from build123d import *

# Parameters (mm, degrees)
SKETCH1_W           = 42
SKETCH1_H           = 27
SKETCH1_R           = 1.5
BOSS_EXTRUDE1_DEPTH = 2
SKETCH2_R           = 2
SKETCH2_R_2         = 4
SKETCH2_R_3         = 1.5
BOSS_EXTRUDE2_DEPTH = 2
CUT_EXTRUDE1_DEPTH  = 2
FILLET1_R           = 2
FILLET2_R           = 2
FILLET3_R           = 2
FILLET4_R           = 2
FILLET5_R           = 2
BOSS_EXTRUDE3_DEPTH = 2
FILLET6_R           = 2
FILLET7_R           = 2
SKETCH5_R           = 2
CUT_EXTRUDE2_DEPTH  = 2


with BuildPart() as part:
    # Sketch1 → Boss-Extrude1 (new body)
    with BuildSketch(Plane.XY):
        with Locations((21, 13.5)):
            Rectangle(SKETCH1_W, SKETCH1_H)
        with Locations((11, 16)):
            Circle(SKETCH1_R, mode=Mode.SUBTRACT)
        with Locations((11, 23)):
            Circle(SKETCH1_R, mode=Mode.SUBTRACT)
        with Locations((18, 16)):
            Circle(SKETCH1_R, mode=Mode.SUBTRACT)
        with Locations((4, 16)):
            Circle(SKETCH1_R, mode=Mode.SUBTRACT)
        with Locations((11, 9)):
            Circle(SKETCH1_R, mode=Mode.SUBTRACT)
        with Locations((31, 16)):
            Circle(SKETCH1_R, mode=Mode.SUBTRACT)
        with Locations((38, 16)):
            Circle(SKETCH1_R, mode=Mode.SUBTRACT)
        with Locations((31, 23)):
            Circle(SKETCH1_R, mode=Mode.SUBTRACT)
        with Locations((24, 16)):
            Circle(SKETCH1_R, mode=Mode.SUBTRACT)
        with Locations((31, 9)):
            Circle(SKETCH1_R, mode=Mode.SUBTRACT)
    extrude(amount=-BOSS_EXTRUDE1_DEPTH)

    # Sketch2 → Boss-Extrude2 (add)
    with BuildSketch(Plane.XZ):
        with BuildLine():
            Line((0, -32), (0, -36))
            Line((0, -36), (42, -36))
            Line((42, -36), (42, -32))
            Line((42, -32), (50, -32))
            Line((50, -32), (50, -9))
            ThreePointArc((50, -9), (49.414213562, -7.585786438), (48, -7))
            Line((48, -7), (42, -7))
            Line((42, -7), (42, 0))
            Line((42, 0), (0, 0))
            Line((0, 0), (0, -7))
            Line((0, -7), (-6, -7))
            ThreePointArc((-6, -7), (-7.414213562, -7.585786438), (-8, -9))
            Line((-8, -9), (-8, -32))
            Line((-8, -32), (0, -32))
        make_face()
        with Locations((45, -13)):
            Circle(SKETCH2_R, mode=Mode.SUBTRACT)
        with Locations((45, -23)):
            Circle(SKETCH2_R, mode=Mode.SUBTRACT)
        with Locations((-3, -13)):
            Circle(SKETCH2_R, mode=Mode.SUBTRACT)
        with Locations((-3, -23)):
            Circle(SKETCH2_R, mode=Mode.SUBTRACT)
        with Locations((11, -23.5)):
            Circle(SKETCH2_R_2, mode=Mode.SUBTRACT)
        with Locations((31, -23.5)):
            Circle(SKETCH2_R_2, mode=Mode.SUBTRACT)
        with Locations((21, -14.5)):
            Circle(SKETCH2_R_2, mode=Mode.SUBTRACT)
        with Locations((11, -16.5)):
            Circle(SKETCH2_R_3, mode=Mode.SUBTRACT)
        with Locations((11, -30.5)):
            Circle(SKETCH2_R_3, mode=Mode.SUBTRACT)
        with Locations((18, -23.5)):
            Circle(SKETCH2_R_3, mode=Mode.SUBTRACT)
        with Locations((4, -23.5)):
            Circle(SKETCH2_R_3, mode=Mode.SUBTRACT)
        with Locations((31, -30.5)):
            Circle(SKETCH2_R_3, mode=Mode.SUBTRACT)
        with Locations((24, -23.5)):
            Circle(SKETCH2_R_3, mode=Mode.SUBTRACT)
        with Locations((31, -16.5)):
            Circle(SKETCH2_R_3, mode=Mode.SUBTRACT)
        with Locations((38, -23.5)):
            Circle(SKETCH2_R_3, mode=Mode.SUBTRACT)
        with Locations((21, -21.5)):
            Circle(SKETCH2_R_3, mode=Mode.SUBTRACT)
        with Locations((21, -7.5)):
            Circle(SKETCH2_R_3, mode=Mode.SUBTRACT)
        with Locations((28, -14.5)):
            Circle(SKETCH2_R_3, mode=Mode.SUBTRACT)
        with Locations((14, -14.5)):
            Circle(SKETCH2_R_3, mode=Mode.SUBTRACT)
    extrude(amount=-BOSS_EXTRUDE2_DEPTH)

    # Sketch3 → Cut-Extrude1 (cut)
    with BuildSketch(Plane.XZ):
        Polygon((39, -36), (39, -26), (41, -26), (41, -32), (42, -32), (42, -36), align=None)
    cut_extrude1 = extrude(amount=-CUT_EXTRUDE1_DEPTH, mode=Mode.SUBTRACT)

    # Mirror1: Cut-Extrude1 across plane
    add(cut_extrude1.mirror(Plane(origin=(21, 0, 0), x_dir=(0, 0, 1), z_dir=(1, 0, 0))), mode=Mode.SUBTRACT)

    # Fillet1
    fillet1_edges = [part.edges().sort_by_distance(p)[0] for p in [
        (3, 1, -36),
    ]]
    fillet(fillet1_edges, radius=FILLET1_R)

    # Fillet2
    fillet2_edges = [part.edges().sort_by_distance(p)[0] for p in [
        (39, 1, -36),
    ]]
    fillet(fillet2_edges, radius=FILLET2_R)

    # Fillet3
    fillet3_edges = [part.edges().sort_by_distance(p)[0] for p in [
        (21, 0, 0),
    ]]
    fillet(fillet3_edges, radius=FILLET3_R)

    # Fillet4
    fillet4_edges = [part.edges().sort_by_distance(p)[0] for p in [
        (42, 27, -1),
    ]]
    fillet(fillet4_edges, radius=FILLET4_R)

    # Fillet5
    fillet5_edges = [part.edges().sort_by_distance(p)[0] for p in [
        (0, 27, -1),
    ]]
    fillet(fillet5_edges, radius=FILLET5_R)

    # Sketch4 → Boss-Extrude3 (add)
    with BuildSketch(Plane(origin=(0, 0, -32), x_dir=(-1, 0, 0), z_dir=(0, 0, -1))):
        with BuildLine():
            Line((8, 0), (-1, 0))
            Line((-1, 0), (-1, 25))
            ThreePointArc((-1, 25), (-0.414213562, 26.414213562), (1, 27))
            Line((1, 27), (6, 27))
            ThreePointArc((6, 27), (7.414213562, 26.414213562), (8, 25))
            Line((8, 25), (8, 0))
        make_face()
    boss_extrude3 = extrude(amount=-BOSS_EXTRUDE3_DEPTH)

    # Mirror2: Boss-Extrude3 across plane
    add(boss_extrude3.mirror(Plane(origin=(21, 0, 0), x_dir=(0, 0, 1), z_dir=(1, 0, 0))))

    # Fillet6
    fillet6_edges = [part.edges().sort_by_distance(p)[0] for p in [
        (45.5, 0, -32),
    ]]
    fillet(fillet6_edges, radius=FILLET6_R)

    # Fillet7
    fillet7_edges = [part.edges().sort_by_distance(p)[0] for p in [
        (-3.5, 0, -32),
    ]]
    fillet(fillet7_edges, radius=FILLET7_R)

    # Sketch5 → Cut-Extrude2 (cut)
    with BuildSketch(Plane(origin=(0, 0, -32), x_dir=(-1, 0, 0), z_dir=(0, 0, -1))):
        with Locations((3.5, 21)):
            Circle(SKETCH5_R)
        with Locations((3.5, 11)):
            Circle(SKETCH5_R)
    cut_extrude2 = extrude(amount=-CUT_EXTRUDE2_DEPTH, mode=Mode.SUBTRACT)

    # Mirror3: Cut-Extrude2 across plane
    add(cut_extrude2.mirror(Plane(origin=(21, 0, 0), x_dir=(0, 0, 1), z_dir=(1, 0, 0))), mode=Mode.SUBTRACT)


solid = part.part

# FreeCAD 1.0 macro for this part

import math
import FreeCAD as App
import Part
import Sketcher

V = App.Vector
Q = App.Units.Quantity


def edges_at(feature, points):
    """Names of the edges that pass closest to the given points."""
    edges = feature.Shape.Edges
    near = lambda p: min(range(len(edges)), key=lambda i: edges[i].distToShape(Part.Vertex(*p))[0])
    return sorted({f"Edge{near(p) + 1}" for p in points})


def add_polygon(sketch, points):
    """Adds a closed chain of lines whose ends are joined by coincident constraints."""
    first, n = sketch.GeometryCount, len(points)
    for a, b in zip(points, points[1:] + points[:1]):
        sketch.addGeometry(Part.LineSegment(App.Vector(*a, 0), App.Vector(*b, 0)), False)
    for i in range(n):
        sketch.addConstraint(Sketcher.Constraint("Coincident", first + i, 2, first + (i + 1) % n, 1))

doc = App.newDocument("Part")
body = doc.addObject("PartDesign::Body", "Body")

# Sketch on XY plane
sketch1 = doc.addObject("Sketcher::SketchObject", "Sketch")
body.addObject(sketch1)
sketch1.AttachmentSupport = (doc.XY_Plane, [""])
sketch1.MapMode = "FlatFace"
add_polygon(sketch1, [(0, 27), (0, 0), (42, 0), (42, 27)])  # lines 0-3
sketch1.addGeometry(Part.Circle(V(11, 9, 0), V(0, 0, 1), 1.5), False)  # 4
sketch1.addGeometry(Part.Circle(V(31, 9, 0), V(0, 0, 1), 1.5), False)  # 5
sketch1.addGeometry(Part.Circle(V(4, 16, 0), V(0, 0, 1), 1.5), False)  # 6
sketch1.addGeometry(Part.Circle(V(11, 16, 0), V(0, 0, 1), 1.5), False)  # 7
sketch1.addGeometry(Part.Circle(V(18, 16, 0), V(0, 0, 1), 1.5), False)  # 8
sketch1.addGeometry(Part.Circle(V(11, 23, 0), V(0, 0, 1), 1.5), False)  # 9
sketch1.addGeometry(Part.Circle(V(24, 16, 0), V(0, 0, 1), 1.5), False)  # 10
sketch1.addGeometry(Part.Circle(V(31, 16, 0), V(0, 0, 1), 1.5), False)  # 11
sketch1.addGeometry(Part.Circle(V(38, 16, 0), V(0, 0, 1), 1.5), False)  # 12
sketch1.addGeometry(Part.Circle(V(31, 23, 0), V(0, 0, 1), 1.5), False)  # 13
sketch1.addConstraint([
    Sketcher.Constraint("Vertical", 0),
    Sketcher.Constraint("Horizontal", 1),
    Sketcher.Constraint("Vertical", 2),
    Sketcher.Constraint("Horizontal", 3),
    Sketcher.Constraint("Coincident", 0, 2, -1, 1),
    Sketcher.Constraint("Equal", 4, 5),
    Sketcher.Constraint("Equal", 5, 6),
    Sketcher.Constraint("Equal", 6, 7),
    Sketcher.Constraint("Equal", 7, 8),
    Sketcher.Constraint("Equal", 8, 9),
    Sketcher.Constraint("Equal", 9, 10),
    Sketcher.Constraint("Equal", 10, 11),
    Sketcher.Constraint("Equal", 11, 12),
    Sketcher.Constraint("Equal", 12, 13),
    Sketcher.Constraint("Horizontal", 4, 3, 5, 3),
    Sketcher.Constraint("Horizontal", 6, 3, 7, 3),
    Sketcher.Constraint("Horizontal", 7, 3, 8, 3),
    Sketcher.Constraint("Horizontal", 8, 3, 10, 3),
    Sketcher.Constraint("Horizontal", 10, 3, 11, 3),
    Sketcher.Constraint("Horizontal", 11, 3, 12, 3),
    Sketcher.Constraint("Horizontal", 9, 3, 13, 3),
    Sketcher.Constraint("Vertical", 4, 3, 7, 3),
    Sketcher.Constraint("Vertical", 7, 3, 9, 3),
    Sketcher.Constraint("Vertical", 5, 3, 11, 3),
    Sketcher.Constraint("Vertical", 11, 3, 13, 3),
    Sketcher.Constraint("Diameter", 4, Q("3 mm")),
    Sketcher.Constraint("DistanceX", 1, 1, 1, 2, Q("42 mm")),
    Sketcher.Constraint("DistanceY", 0, 2, 0, 1, Q("27 mm")),
    Sketcher.Constraint("DistanceX", -1, 1, 4, 3, Q("11 mm")),
    Sketcher.Constraint("DistanceY", -1, 1, 4, 3, Q("9 mm")),
    Sketcher.Constraint("DistanceX", -1, 1, 5, 3, Q("31 mm")),
    Sketcher.Constraint("DistanceX", -1, 1, 6, 3, Q("4 mm")),
    Sketcher.Constraint("DistanceY", -1, 1, 6, 3, Q("16 mm")),
    Sketcher.Constraint("DistanceX", -1, 1, 8, 3, Q("18 mm")),
    Sketcher.Constraint("DistanceY", -1, 1, 9, 3, Q("23 mm")),
    Sketcher.Constraint("DistanceX", -1, 1, 10, 3, Q("24 mm")),
    Sketcher.Constraint("DistanceX", -1, 1, 12, 3, Q("38 mm")),
])
pad1 = doc.addObject("PartDesign::Pad", "Pad")
body.addObject(pad1)
pad1.Profile = sketch1
pad1.Length = 2
pad1.Reversed = True

# Sketch on XZ plane
sketch2 = doc.addObject("Sketcher::SketchObject", "Sketch001")
body.addObject(sketch2)
sketch2.AttachmentSupport = (doc.XZ_Plane, [""])
sketch2.MapMode = "FlatFace"
sketch2.addGeometry([
    Part.LineSegment(V(0, -32, 0), V(0, -36, 0)),  # 0
    Part.LineSegment(V(0, -36, 0), V(42, -36, 0)),  # 1
    Part.LineSegment(V(42, -36, 0), V(42, -32, 0)),  # 2
    Part.LineSegment(V(42, -32, 0), V(50, -32, 0)),  # 3
    Part.LineSegment(V(50, -32, 0), V(50, -9, 0)),  # 4
    Part.ArcOfCircle(Part.Circle(V(48, -9, 0), V(0, 0, 1), 2), math.radians(0), math.radians(90)),  # 5
    Part.LineSegment(V(48, -7, 0), V(42, -7, 0)),  # 6
    Part.LineSegment(V(42, -7, 0), V(42, 0, 0)),  # 7
    Part.LineSegment(V(42, 0, 0), V(0, 0, 0)),  # 8
    Part.LineSegment(V(0, 0, 0), V(0, -7, 0)),  # 9
    Part.LineSegment(V(0, -7, 0), V(-6, -7, 0)),  # 10
    Part.ArcOfCircle(Part.Circle(V(-6, -9, 0), V(0, 0, 1), 2), math.radians(90), math.radians(180)),  # 11
    Part.LineSegment(V(-8, -9, 0), V(-8, -32, 0)),  # 12
    Part.LineSegment(V(-8, -32, 0), V(0, -32, 0)),  # 13
    Part.Circle(V(11, -30.5, 0), V(0, 0, 1), 1.5),  # 14
    Part.Circle(V(-3, -23, 0), V(0, 0, 1), 2),  # 15
    Part.Circle(V(4, -23.5, 0), V(0, 0, 1), 1.5),  # 16
    Part.Circle(V(11, -23.5, 0), V(0, 0, 1), 4),  # 17
    Part.Circle(V(18, -23.5, 0), V(0, 0, 1), 1.5),  # 18
    Part.Circle(V(31, -30.5, 0), V(0, 0, 1), 1.5),  # 19
    Part.Circle(V(24, -23.5, 0), V(0, 0, 1), 1.5),  # 20
    Part.Circle(V(31, -23.5, 0), V(0, 0, 1), 4),  # 21
    Part.Circle(V(21, -21.5, 0), V(0, 0, 1), 1.5),  # 22
    Part.Circle(V(38, -23.5, 0), V(0, 0, 1), 1.5),  # 23
    Part.Circle(V(45, -23, 0), V(0, 0, 1), 2),  # 24
    Part.Circle(V(-3, -13, 0), V(0, 0, 1), 2),  # 25
    Part.Circle(V(11, -16.5, 0), V(0, 0, 1), 1.5),  # 26
    Part.Circle(V(14, -14.5, 0), V(0, 0, 1), 1.5),  # 27
    Part.Circle(V(31, -16.5, 0), V(0, 0, 1), 1.5),  # 28
    Part.Circle(V(21, -14.5, 0), V(0, 0, 1), 4),  # 29
    Part.Circle(V(28, -14.5, 0), V(0, 0, 1), 1.5),  # 30
    Part.Circle(V(45, -13, 0), V(0, 0, 1), 2),  # 31
    Part.Circle(V(21, -7.5, 0), V(0, 0, 1), 1.5),  # 32
], False)
sketch2.addConstraint([
    Sketcher.Constraint("Coincident", 0, 2, 1, 1),
    Sketcher.Constraint("Coincident", 1, 2, 2, 1),
    Sketcher.Constraint("Coincident", 2, 2, 3, 1),
    Sketcher.Constraint("Coincident", 3, 2, 4, 1),
    Sketcher.Constraint("Tangent", 4, 2, 5, 1),
    Sketcher.Constraint("Tangent", 5, 2, 6, 1),
    Sketcher.Constraint("Coincident", 6, 2, 7, 1),
    Sketcher.Constraint("Coincident", 7, 2, 8, 1),
    Sketcher.Constraint("Coincident", 8, 2, 9, 1),
    Sketcher.Constraint("Coincident", 9, 2, 10, 1),
    Sketcher.Constraint("Tangent", 10, 2, 11, 1),
    Sketcher.Constraint("Tangent", 11, 2, 12, 1),
    Sketcher.Constraint("Coincident", 12, 2, 13, 1),
    Sketcher.Constraint("Coincident", 13, 2, 0, 1),
    Sketcher.Constraint("Vertical", 0),
    Sketcher.Constraint("Horizontal", 1),
    Sketcher.Constraint("Vertical", 2),
    Sketcher.Constraint("Horizontal", 3),
    Sketcher.Constraint("Vertical", 4),
    Sketcher.Constraint("Horizontal", 6),
    Sketcher.Constraint("Vertical", 7),
    Sketcher.Constraint("Horizontal", 8),
    Sketcher.Constraint("Vertical", 9),
    Sketcher.Constraint("Horizontal", 10),
    Sketcher.Constraint("Vertical", 12),
    Sketcher.Constraint("Horizontal", 13),
    Sketcher.Constraint("Coincident", 8, 2, -1, 1),
    Sketcher.Constraint("Equal", 5, 11),
    Sketcher.Constraint("Equal", 11, 15),
    Sketcher.Constraint("Equal", 14, 16),
    Sketcher.Constraint("Equal", 16, 18),
    Sketcher.Constraint("Equal", 18, 19),
    Sketcher.Constraint("Equal", 19, 20),
    Sketcher.Constraint("Equal", 17, 21),
    Sketcher.Constraint("Equal", 20, 22),
    Sketcher.Constraint("Equal", 22, 23),
    Sketcher.Constraint("Equal", 15, 24),
    Sketcher.Constraint("Equal", 24, 25),
    Sketcher.Constraint("Equal", 23, 26),
    Sketcher.Constraint("Equal", 26, 27),
    Sketcher.Constraint("Equal", 27, 28),
    Sketcher.Constraint("Equal", 21, 29),
    Sketcher.Constraint("Equal", 28, 30),
    Sketcher.Constraint("Equal", 25, 31),
    Sketcher.Constraint("Equal", 30, 32),
    Sketcher.Constraint("PointOnObject", 0, 2, -2),
    Sketcher.Constraint("Horizontal", 5, 3, 11, 3),
    Sketcher.Constraint("Horizontal", 16, 3, 17, 3),
    Sketcher.Constraint("Horizontal", 17, 3, 18, 3),
    Sketcher.Constraint("Horizontal", 14, 3, 19, 3),
    Sketcher.Constraint("Horizontal", 18, 3, 20, 3),
    Sketcher.Constraint("Horizontal", 20, 3, 21, 3),
    Sketcher.Constraint("Horizontal", 21, 3, 23, 3),
    Sketcher.Constraint("Horizontal", 15, 3, 24, 3),
    Sketcher.Constraint("Horizontal", 26, 3, 28, 3),
    Sketcher.Constraint("Horizontal", 27, 3, 29, 3),
    Sketcher.Constraint("Horizontal", 29, 3, 30, 3),
    Sketcher.Constraint("Horizontal", 25, 3, 31, 3),
    Sketcher.Constraint("Horizontal", 3, 2, 12, 2),
    Sketcher.Constraint("Vertical", 14, 3, 17, 3),
    Sketcher.Constraint("Vertical", 19, 3, 21, 3),
    Sketcher.Constraint("Vertical", 15, 3, 25, 3),
    Sketcher.Constraint("Vertical", 17, 3, 26, 3),
    Sketcher.Constraint("Vertical", 21, 3, 28, 3),
    Sketcher.Constraint("Vertical", 22, 3, 29, 3),
    Sketcher.Constraint("Vertical", 24, 3, 31, 3),
    Sketcher.Constraint("Vertical", 29, 3, 32, 3),
    Sketcher.Constraint("Vertical", 2, 2, 6, 2),
    Sketcher.Constraint("Equal", 6, 10),
    Sketcher.Constraint("Diameter", 14, Q("3 mm")),
    Sketcher.Constraint("Diameter", 15, Q("4 mm")),
    Sketcher.Constraint("Diameter", 17, Q("8 mm")),
    Sketcher.Constraint("DistanceX", 1, 1, 1, 2, Q("42 mm")),
    Sketcher.Constraint("DistanceX", 3, 1, 3, 2, Q("8 mm")),
    Sketcher.Constraint("DistanceY", 0, 2, 0, 1, Q("4 mm")),
    Sketcher.Constraint("DistanceY", 4, 1, 4, 2, Q("23 mm")),
    Sketcher.Constraint("DistanceY", 7, 1, 7, 2, Q("7 mm")),
    Sketcher.Constraint("DistanceX", -1, 1, 14, 3, Q("11 mm")),
    Sketcher.Constraint("DistanceX", 15, 3, -1, 1, Q("3 mm")),
    Sketcher.Constraint("DistanceY", 15, 3, -1, 1, Q("23 mm")),
    Sketcher.Constraint("DistanceX", -1, 1, 16, 3, Q("4 mm")),
    Sketcher.Constraint("DistanceX", -1, 1, 18, 3, Q("18 mm")),
    Sketcher.Constraint("DistanceX", -1, 1, 19, 3, Q("31 mm")),
    Sketcher.Constraint("DistanceX", -1, 1, 20, 3, Q("24 mm")),
    Sketcher.Constraint("DistanceX", -1, 1, 22, 3, Q("21 mm")),
    Sketcher.Constraint("DistanceX", -1, 1, 23, 3, Q("38 mm")),
    Sketcher.Constraint("DistanceX", -1, 1, 24, 3, Q("45 mm")),
    Sketcher.Constraint("DistanceY", 25, 3, -1, 1, Q("13 mm")),
    Sketcher.Constraint("DistanceX", -1, 1, 27, 3, Q("14 mm")),
    Sketcher.Constraint("DistanceX", -1, 1, 30, 3, Q("28 mm")),
    Sketcher.Constraint("DistanceY", 14, 3, 16, 3, Q("7 mm")),
    Sketcher.Constraint("DistanceY", 18, 3, 22, 3, Q("2 mm")),
    Sketcher.Constraint("DistanceY", 17, 3, 26, 3, Q("7 mm")),
    Sketcher.Constraint("DistanceY", 26, 3, 27, 3, Q("2 mm")),
    Sketcher.Constraint("DistanceY", 29, 3, 32, 3, Q("7 mm")),
    Sketcher.Constraint("DistanceY", 14, 3, -1, 1, Q("30.5 mm")),
])
pad2 = doc.addObject("PartDesign::Pad", "Pad001")
body.addObject(pad2)
pad2.Profile = sketch2
pad2.Length = 2
pad2.Reversed = True

# Sketch on XZ plane
sketch3 = doc.addObject("Sketcher::SketchObject", "Sketch002")
body.addObject(sketch3)
sketch3.AttachmentSupport = (doc.XZ_Plane, [""])
sketch3.MapMode = "FlatFace"
add_polygon(sketch3, [(39, -26), (39, -36), (42, -36), (42, -32), (41, -32), (41, -26)])  # lines 0-5
sketch3.addConstraint([
    Sketcher.Constraint("Vertical", 0),
    Sketcher.Constraint("Horizontal", 1),
    Sketcher.Constraint("Vertical", 2),
    Sketcher.Constraint("Horizontal", 3),
    Sketcher.Constraint("Vertical", 4),
    Sketcher.Constraint("Horizontal", 5),
    Sketcher.Constraint("DistanceX", 1, 1, 1, 2, Q("3 mm")),
    Sketcher.Constraint("DistanceX", 3, 2, 3, 1, Q("1 mm")),
    Sketcher.Constraint("DistanceY", 0, 2, 0, 1, Q("10 mm")),
    Sketcher.Constraint("DistanceY", 2, 1, 2, 2, Q("4 mm")),
    Sketcher.Constraint("DistanceX", -1, 1, 0, 2, Q("39 mm")),
    Sketcher.Constraint("DistanceY", 0, 2, -1, 1, Q("36 mm")),
])
pocket1 = doc.addObject("PartDesign::Pocket", "Pocket")
body.addObject(pocket1)
pocket1.Profile = sketch3
pocket1.Length = 2
doc.recompute()

datumplane = doc.addObject("PartDesign::Plane", "DatumPlane")
body.addObject(datumplane)
datumplane.AttachmentSupport = (doc.YZ_Plane, [""])
datumplane.MapMode = "FlatFace"
datumplane.AttachmentOffset = App.Placement(V(0, 0, 21), App.Rotation())
mirrored = doc.addObject("PartDesign::Mirrored", "Mirrored")
body.addObject(mirrored)
mirrored.Originals = [pocket1]
mirrored.MirrorPlane = (datumplane, [""])
body.Tip = mirrored
doc.recompute()

fillet = doc.addObject("PartDesign::Fillet", "Fillet")
body.addObject(fillet)
fillet.Base = (mirrored, edges_at(mirrored, [(3, 1, -36)]))
fillet.Radius = 2
doc.recompute()

fillet2 = doc.addObject("PartDesign::Fillet", "Fillet001")
body.addObject(fillet2)
fillet2.Base = (fillet, edges_at(fillet, [(39, 1, -36)]))
fillet2.Radius = 2
doc.recompute()

fillet3 = doc.addObject("PartDesign::Fillet", "Fillet002")
body.addObject(fillet3)
fillet3.Base = (fillet2, edges_at(fillet2, [(21, 0, 0)]))
fillet3.Radius = 2
doc.recompute()

fillet4 = doc.addObject("PartDesign::Fillet", "Fillet003")
body.addObject(fillet4)
fillet4.Base = (fillet3, edges_at(fillet3, [(42, 27, -1)]))
fillet4.Radius = 2
doc.recompute()

fillet5 = doc.addObject("PartDesign::Fillet", "Fillet004")
body.addObject(fillet5)
fillet5.Base = (fillet4, edges_at(fillet4, [(0, 27, -1)]))
fillet5.Radius = 2

# Sketch on XY plane
sketch4 = doc.addObject("Sketcher::SketchObject", "Sketch003")
body.addObject(sketch4)
sketch4.AttachmentSupport = (doc.XY_Plane, [""])
sketch4.MapMode = "FlatFace"
sketch4.AttachmentOffset = App.Placement(V(0, 0, -32), App.Rotation())
sketch4.addGeometry([
    Part.LineSegment(V(1, 0, 0), V(-8, 0, 0)),  # 0
    Part.LineSegment(V(-8, 0, 0), V(-8, 25, 0)),  # 1
    Part.ArcOfCircle(Part.Circle(V(-6, 25, 0), V(0, 0, 1), 2), math.radians(90), math.radians(180)),  # 2
    Part.LineSegment(V(-6, 27, 0), V(-1, 27, 0)),  # 3
    Part.ArcOfCircle(Part.Circle(V(-1, 25, 0), V(0, 0, 1), 2), math.radians(0), math.radians(90)),  # 4
    Part.LineSegment(V(1, 25, 0), V(1, 0, 0)),  # 5
], False)
sketch4.addConstraint([
    Sketcher.Constraint("Coincident", 0, 2, 1, 1),
    Sketcher.Constraint("Tangent", 1, 2, 2, 2),
    Sketcher.Constraint("Tangent", 2, 1, 3, 1),
    Sketcher.Constraint("Tangent", 3, 2, 4, 2),
    Sketcher.Constraint("Tangent", 4, 1, 5, 1),
    Sketcher.Constraint("Coincident", 5, 2, 0, 1),
    Sketcher.Constraint("Horizontal", 0),
    Sketcher.Constraint("Vertical", 1),
    Sketcher.Constraint("Horizontal", 3),
    Sketcher.Constraint("Vertical", 5),
    Sketcher.Constraint("Equal", 2, 4),
    Sketcher.Constraint("PointOnObject", 0, 2, -1),
    Sketcher.Constraint("Radius", 2, Q("2 mm")),
    Sketcher.Constraint("DistanceX", 0, 2, 0, 1, Q("9 mm")),
    Sketcher.Constraint("DistanceY", 1, 1, 1, 2, Q("25 mm")),
    Sketcher.Constraint("DistanceX", 2, 3, -1, 1, Q("6 mm")),
])
pad3 = doc.addObject("PartDesign::Pad", "Pad002")
body.addObject(pad3)
pad3.Profile = sketch4
pad3.Length = 2
doc.recompute()

datumplane2 = doc.addObject("PartDesign::Plane", "DatumPlane001")
body.addObject(datumplane2)
datumplane2.AttachmentSupport = (doc.YZ_Plane, [""])
datumplane2.MapMode = "FlatFace"
datumplane2.AttachmentOffset = App.Placement(V(0, 0, 21), App.Rotation())
mirrored2 = doc.addObject("PartDesign::Mirrored", "Mirrored001")
body.addObject(mirrored2)
mirrored2.Originals = [pad3]
mirrored2.MirrorPlane = (datumplane2, [""])
body.Tip = mirrored2
doc.recompute()

fillet6 = doc.addObject("PartDesign::Fillet", "Fillet005")
body.addObject(fillet6)
fillet6.Base = (mirrored2, edges_at(mirrored2, [(45.5, 0, -32)]))
fillet6.Radius = 2
doc.recompute()

fillet7 = doc.addObject("PartDesign::Fillet", "Fillet006")
body.addObject(fillet7)
fillet7.Base = (fillet6, edges_at(fillet6, [(-3.5, 0, -32)]))
fillet7.Radius = 2

# Sketch on XY plane
sketch5 = doc.addObject("Sketcher::SketchObject", "Sketch004")
body.addObject(sketch5)
sketch5.AttachmentSupport = (doc.XY_Plane, [""])
sketch5.MapMode = "FlatFace"
sketch5.AttachmentOffset = App.Placement(V(0, 0, -32), App.Rotation())
sketch5.addGeometry([
    Part.Circle(V(-3.5, 21, 0), V(0, 0, 1), 2),
    Part.Circle(V(-3.5, 11, 0), V(0, 0, 1), 2),
], False)
sketch5.addConstraint([
    Sketcher.Constraint("Equal", 0, 1),
    Sketcher.Constraint("Vertical", 0, 3, 1, 3),
    Sketcher.Constraint("Diameter", 0, Q("4 mm")),
    Sketcher.Constraint("DistanceY", -1, 1, 0, 3, Q("21 mm")),
    Sketcher.Constraint("DistanceY", -1, 1, 1, 3, Q("11 mm")),
    Sketcher.Constraint("DistanceX", 0, 3, -1, 1, Q("3.5 mm")),
])
pocket2 = doc.addObject("PartDesign::Pocket", "Pocket001")
body.addObject(pocket2)
pocket2.Profile = sketch5
pocket2.Length = 2
pocket2.Reversed = True
doc.recompute()

datumplane3 = doc.addObject("PartDesign::Plane", "DatumPlane002")
body.addObject(datumplane3)
datumplane3.AttachmentSupport = (doc.YZ_Plane, [""])
datumplane3.MapMode = "FlatFace"
datumplane3.AttachmentOffset = App.Placement(V(0, 0, 21), App.Rotation())
mirrored3 = doc.addObject("PartDesign::Mirrored", "Mirrored002")
body.addObject(mirrored3)
mirrored3.Originals = [pocket2]
mirrored3.MirrorPlane = (datumplane3, [""])
body.Tip = mirrored3

doc.recompute()
